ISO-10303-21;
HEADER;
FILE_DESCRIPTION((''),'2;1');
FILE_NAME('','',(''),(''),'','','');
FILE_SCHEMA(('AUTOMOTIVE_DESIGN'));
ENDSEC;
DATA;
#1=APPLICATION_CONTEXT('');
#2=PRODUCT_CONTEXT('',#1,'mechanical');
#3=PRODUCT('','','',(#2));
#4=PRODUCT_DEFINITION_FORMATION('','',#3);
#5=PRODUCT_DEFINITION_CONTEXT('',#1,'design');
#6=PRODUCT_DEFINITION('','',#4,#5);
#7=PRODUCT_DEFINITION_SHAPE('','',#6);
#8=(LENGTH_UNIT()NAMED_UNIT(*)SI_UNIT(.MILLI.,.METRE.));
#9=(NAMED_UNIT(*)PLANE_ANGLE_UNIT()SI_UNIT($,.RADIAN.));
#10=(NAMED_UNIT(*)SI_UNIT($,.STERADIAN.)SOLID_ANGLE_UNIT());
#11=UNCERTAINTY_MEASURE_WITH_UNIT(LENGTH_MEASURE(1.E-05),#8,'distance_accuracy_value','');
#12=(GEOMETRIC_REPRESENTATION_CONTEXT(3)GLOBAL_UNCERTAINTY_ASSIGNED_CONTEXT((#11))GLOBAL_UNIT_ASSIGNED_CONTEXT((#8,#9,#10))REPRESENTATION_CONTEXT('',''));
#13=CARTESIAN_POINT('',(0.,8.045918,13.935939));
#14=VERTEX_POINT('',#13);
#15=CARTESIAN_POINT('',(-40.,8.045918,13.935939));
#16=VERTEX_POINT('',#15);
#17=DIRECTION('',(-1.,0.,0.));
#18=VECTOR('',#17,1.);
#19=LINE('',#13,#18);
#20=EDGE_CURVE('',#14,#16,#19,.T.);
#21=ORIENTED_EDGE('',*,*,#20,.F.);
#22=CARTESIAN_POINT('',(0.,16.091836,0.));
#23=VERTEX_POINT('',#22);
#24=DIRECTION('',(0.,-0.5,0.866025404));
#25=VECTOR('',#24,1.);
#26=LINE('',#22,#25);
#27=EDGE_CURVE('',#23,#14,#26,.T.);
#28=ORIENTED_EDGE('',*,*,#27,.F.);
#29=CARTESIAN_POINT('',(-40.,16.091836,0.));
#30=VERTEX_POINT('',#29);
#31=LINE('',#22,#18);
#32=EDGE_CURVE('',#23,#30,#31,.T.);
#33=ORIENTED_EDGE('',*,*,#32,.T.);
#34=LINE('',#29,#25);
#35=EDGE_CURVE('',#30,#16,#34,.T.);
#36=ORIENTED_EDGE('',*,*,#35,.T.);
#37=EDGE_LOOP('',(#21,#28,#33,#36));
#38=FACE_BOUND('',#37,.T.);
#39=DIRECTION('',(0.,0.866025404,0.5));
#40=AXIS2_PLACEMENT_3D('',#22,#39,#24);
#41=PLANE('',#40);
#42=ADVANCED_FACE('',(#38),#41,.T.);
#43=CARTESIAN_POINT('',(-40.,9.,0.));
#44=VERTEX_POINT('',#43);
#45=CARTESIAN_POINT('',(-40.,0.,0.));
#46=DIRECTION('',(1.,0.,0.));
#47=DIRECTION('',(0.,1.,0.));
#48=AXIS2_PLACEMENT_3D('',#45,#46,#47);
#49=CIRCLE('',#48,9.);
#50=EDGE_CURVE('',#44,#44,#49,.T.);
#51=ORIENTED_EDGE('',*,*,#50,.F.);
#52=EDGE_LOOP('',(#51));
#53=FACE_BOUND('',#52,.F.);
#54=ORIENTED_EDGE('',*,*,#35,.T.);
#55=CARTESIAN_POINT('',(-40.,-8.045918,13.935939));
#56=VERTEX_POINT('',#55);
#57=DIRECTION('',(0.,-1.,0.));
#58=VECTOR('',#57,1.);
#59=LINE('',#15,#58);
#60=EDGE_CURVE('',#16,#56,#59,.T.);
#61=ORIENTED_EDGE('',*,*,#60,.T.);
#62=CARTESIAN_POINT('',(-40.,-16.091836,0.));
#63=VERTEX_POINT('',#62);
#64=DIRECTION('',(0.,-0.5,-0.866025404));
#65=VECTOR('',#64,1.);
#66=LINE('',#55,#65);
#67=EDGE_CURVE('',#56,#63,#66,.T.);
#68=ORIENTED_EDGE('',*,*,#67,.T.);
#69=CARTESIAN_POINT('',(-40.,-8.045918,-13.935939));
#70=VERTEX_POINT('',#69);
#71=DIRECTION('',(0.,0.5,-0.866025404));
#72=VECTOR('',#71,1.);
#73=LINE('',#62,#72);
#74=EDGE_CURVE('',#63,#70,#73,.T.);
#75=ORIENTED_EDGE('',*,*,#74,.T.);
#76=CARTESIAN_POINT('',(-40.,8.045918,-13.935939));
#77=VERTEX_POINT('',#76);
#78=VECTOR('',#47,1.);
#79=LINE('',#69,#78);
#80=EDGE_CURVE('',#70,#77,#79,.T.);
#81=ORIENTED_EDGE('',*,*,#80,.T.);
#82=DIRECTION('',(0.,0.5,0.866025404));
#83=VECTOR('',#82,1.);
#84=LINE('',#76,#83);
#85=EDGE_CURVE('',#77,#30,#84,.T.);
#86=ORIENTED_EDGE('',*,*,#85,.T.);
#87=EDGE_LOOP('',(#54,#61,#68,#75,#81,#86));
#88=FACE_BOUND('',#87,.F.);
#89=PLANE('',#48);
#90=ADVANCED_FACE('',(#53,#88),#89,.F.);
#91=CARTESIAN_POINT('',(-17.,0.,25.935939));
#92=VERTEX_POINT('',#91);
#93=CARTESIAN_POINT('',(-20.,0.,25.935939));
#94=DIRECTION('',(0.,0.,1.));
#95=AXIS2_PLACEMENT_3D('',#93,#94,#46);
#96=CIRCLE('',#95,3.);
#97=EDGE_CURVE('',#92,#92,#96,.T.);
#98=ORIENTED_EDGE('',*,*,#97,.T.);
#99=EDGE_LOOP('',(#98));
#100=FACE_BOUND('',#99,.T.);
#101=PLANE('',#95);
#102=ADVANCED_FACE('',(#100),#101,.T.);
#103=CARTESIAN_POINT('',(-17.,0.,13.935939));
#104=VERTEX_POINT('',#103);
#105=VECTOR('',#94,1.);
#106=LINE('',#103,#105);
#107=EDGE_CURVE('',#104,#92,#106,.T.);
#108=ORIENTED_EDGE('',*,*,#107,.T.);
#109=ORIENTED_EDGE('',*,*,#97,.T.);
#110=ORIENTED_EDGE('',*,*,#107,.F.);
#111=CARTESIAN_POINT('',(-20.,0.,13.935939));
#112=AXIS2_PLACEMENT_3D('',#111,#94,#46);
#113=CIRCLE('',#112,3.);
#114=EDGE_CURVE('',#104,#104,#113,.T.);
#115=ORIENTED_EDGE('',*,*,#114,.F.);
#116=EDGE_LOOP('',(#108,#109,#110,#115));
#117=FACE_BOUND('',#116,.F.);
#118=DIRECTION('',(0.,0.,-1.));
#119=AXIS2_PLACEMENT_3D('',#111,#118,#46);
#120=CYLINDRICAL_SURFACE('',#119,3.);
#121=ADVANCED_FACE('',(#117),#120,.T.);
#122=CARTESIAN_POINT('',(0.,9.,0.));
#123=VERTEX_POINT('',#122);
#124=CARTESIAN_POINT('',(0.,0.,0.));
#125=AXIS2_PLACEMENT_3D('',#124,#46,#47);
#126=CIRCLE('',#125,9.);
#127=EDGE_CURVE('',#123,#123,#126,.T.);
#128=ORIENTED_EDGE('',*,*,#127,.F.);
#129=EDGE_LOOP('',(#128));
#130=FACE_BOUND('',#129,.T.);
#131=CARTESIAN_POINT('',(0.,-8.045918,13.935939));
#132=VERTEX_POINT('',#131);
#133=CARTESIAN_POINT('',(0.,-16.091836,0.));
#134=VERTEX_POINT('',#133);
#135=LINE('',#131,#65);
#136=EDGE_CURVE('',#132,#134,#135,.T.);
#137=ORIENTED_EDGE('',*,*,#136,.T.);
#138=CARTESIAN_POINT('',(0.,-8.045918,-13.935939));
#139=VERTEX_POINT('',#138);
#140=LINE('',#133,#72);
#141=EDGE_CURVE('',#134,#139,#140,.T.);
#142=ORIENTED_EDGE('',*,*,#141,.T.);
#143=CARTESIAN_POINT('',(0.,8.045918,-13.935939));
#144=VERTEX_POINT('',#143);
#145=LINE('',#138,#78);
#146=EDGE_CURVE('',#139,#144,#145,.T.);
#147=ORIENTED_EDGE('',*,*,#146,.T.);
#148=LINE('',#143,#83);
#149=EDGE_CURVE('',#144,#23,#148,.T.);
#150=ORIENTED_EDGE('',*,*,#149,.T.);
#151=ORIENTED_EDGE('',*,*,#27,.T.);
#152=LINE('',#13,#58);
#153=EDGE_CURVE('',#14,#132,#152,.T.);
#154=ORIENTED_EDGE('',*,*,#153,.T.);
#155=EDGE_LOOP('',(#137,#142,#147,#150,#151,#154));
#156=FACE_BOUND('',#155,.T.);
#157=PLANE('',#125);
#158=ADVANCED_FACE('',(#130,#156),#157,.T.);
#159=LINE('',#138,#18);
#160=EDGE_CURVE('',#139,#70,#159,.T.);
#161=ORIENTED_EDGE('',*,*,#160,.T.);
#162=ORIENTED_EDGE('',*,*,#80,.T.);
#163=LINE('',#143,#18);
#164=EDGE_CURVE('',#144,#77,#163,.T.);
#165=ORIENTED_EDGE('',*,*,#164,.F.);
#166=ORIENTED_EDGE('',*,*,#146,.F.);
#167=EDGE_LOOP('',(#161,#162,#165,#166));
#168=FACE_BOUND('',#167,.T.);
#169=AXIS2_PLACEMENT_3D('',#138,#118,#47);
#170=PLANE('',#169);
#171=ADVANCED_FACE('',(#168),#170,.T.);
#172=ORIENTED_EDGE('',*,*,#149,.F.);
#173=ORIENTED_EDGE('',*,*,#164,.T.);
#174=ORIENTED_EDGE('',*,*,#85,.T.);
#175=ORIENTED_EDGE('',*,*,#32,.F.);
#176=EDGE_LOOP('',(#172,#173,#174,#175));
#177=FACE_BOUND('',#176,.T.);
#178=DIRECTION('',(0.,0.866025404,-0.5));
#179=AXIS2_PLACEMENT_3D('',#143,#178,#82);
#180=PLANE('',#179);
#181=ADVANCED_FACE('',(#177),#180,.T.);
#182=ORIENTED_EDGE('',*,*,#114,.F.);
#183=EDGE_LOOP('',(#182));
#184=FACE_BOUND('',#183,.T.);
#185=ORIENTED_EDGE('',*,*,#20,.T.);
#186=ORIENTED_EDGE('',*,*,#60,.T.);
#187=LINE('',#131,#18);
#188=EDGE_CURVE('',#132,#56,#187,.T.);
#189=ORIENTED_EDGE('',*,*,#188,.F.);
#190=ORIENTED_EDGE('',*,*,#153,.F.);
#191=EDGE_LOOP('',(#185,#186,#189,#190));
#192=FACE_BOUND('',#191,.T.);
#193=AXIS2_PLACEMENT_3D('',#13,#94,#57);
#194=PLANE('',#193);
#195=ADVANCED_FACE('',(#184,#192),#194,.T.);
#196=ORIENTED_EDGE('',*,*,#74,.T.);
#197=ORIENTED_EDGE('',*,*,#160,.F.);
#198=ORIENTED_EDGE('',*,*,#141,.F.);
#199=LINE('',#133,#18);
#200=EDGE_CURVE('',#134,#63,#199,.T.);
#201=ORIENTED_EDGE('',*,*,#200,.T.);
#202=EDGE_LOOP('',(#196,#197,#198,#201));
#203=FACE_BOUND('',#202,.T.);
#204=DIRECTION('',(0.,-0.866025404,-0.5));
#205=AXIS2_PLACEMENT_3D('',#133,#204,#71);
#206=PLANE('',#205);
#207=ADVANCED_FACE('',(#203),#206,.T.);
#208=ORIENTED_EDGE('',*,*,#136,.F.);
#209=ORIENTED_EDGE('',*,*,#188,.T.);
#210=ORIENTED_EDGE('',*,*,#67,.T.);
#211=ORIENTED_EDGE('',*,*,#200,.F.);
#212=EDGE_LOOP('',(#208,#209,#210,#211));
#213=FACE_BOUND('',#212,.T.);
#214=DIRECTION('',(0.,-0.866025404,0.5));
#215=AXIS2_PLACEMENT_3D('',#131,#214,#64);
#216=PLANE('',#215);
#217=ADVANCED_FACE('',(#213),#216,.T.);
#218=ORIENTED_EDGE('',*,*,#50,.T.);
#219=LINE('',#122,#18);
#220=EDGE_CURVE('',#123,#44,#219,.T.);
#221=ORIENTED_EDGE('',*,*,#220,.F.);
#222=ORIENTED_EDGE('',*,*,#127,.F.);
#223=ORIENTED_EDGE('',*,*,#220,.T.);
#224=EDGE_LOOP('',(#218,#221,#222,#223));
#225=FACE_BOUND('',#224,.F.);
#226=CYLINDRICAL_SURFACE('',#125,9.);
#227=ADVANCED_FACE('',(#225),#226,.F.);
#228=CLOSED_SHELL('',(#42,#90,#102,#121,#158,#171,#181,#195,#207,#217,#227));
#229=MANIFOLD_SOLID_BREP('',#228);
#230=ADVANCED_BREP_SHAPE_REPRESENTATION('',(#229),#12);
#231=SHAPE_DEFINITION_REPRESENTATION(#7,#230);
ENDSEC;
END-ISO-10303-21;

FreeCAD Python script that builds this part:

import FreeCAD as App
import Part
import Sketcher

V = App.Vector
Q = App.Units.Quantity

doc = App.newDocument("Part")
body = doc.addObject("PartDesign::Body", "Body")

# Sketch on YZ plane
sketch1 = body.newObject("Sketcher::SketchObject", "Sketch")
sketch1.AttachmentSupport = (doc.getObject("YZ_Plane"), [""])
sketch1.MapMode = "FlatFace"
sketch1.addGeometry([
    Part.LineSegment(V(8.045918, 13.935939, 0), V(-8.045918, 13.935939, 0)),  # 0
    Part.LineSegment(V(-8.045918, 13.935939, 0), V(-16.091836, 0, 0)),  # 1
    Part.LineSegment(V(-16.091836, 0, 0), V(-8.045918, -13.935939, 0)),  # 2
    Part.LineSegment(V(-8.045918, -13.935939, 0), V(8.045918, -13.935939, 0)),  # 3
    Part.LineSegment(V(8.045918, -13.935939, 0), V(16.091836, 0, 0)),  # 4
    Part.LineSegment(V(16.091836, 0, 0), V(8.045918, 13.935939, 0)),  # 5
    Part.Circle(V(0, 0, 0), V(0, 0, 1), 9),  # 6
], False)
sketch1.addConstraint([
    Sketcher.Constraint("Coincident", 0, 2, 1, 1),
    Sketcher.Constraint("Coincident", 1, 2, 2, 1),
    Sketcher.Constraint("Coincident", 2, 2, 3, 1),
    Sketcher.Constraint("Coincident", 3, 2, 4, 1),
    Sketcher.Constraint("Coincident", 4, 2, 5, 1),
    Sketcher.Constraint("Coincident", 5, 2, 0, 1),
    Sketcher.Constraint("Horizontal", 0),
    Sketcher.Constraint("Horizontal", 3),
    Sketcher.Constraint("Coincident", 6, 3, -1, 1),
    Sketcher.Constraint("Symmetric", 0, 2, 3, 2, -1, 1),
    Sketcher.Constraint("Symmetric", 1, 2, 4, 2, -1, 1),
    Sketcher.Constraint("PointOnObject", 1, 2, -1),
    Sketcher.Constraint("Parallel", 2, 5),
    Sketcher.Constraint("Vertical", 0, 2, 2, 2),
    Sketcher.Constraint("Diameter", 6, 18.0),
    Sketcher.Constraint("Angle", 1, Q("-120 deg")),
    Sketcher.Constraint("DistanceX", 0, 2, 0, 1, 16.091836),
    Sketcher.Constraint("DistanceY", -1, 1, 0, 2, 13.935939),
])
pad1 = body.newObject("PartDesign::Pad", "Pad")
pad1.Profile = sketch1
pad1.Length = 40
pad1.Reversed = True

# Sketch on XY plane
sketch2 = body.newObject("Sketcher::SketchObject", "Sketch001")
sketch2.AttachmentSupport = (doc.getObject("XY_Plane"), [""])
sketch2.MapMode = "FlatFace"
sketch2.AttachmentOffset = App.Placement(V(0, 0, 13.935939), App.Rotation())
sketch2.addGeometry(Part.Circle(V(-20, 0, 0), V(0, 0, 1), 3), False)
sketch2.addConstraint([
    Sketcher.Constraint("PointOnObject", 0, 3, -1),
    Sketcher.Constraint("Diameter", 0, 6.0),
    Sketcher.Constraint("DistanceX", 0, 3, -1, 1, 20.0),
])
pad2 = body.newObject("PartDesign::Pad", "Pad001")
pad2.Profile = sketch2
pad2.Length = 12

doc.recompute()
